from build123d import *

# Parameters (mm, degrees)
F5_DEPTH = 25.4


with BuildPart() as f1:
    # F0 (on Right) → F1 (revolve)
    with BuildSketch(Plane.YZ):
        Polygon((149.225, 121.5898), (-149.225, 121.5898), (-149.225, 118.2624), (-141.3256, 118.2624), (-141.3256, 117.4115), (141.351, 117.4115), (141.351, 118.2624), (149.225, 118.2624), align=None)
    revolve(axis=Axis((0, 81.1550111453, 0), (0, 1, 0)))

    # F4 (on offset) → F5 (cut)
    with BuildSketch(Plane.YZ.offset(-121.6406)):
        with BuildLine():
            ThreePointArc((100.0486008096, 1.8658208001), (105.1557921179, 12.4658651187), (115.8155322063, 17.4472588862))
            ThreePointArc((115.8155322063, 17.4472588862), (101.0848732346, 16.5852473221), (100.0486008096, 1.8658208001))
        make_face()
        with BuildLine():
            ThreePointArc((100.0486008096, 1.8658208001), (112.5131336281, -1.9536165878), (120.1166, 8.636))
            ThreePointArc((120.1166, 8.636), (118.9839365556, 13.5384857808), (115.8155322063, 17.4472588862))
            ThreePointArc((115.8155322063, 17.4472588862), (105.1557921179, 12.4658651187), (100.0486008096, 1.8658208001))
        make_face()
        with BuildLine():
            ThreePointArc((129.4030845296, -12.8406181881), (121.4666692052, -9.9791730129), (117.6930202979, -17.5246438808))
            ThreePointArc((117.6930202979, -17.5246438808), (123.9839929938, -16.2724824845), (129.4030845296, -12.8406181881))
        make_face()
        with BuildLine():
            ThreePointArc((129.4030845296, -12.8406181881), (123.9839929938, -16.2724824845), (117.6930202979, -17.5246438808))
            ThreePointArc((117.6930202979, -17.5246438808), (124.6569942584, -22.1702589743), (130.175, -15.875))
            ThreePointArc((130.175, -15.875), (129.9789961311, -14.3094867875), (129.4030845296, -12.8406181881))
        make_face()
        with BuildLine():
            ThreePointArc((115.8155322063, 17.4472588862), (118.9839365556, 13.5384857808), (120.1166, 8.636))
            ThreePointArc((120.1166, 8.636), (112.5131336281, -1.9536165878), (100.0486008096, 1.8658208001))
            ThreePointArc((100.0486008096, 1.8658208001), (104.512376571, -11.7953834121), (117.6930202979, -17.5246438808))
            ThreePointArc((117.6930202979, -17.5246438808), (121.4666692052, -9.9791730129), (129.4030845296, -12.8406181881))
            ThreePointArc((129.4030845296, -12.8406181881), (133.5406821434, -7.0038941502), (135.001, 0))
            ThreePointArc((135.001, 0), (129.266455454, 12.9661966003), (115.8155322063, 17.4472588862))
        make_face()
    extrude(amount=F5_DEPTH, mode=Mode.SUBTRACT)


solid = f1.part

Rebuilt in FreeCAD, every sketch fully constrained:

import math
import FreeCAD as App
import Part
import Sketcher
from FreeCAD import Vector
Q = App.Units.Quantity

doc = App.newDocument("Part")
body = doc.addObject("PartDesign::Body", "Body")

# Sketch on YZ plane
sketch1 = body.newObject("Sketcher::SketchObject", "Sketch")
sketch1.AttachmentSupport = (doc.getObject("YZ_Plane"), [""])
sketch1.MapMode = "FlatFace"
sketch1.addGeometry([
    Part.LineSegment(Vector(149.225, 121.5898, 0), Vector(-149.225, 121.5898, 0)),  # 0
    Part.LineSegment(Vector(-149.225, 121.5898, 0), Vector(-149.225, 118.2624, 0)),  # 1
    Part.LineSegment(Vector(-149.225, 118.2624, 0), Vector(-141.3256, 118.2624, 0)),  # 2
    Part.LineSegment(Vector(-141.3256, 118.2624, 0), Vector(-141.3256, 117.4115, 0)),  # 3
    Part.LineSegment(Vector(-141.3256, 117.4115, 0), Vector(141.351, 117.4115, 0)),  # 4
    Part.LineSegment(Vector(141.351, 117.4115, 0), Vector(141.351, 118.2624, 0)),  # 5
    Part.LineSegment(Vector(141.351, 118.2624, 0), Vector(149.225, 118.2624, 0)),  # 6
    Part.LineSegment(Vector(149.225, 118.2624, 0), Vector(149.225, 121.5898, 0)),  # 7
], False)
sketch1.addConstraint([
    Sketcher.Constraint("Coincident", 0, 2, 1, 1),
    Sketcher.Constraint("Coincident", 1, 2, 2, 1),
    Sketcher.Constraint("Coincident", 2, 2, 3, 1),
    Sketcher.Constraint("Coincident", 3, 2, 4, 1),
    Sketcher.Constraint("Coincident", 4, 2, 5, 1),
    Sketcher.Constraint("Coincident", 5, 2, 6, 1),
    Sketcher.Constraint("Coincident", 6, 2, 7, 1),
    Sketcher.Constraint("Coincident", 7, 2, 0, 1),
    Sketcher.Constraint("Horizontal", 0),
    Sketcher.Constraint("Vertical", 1),
    Sketcher.Constraint("Horizontal", 2),
    Sketcher.Constraint("Vertical", 3),
    Sketcher.Constraint("Horizontal", 4),
    Sketcher.Constraint("Vertical", 5),
    Sketcher.Constraint("Horizontal", 6),
    Sketcher.Constraint("Vertical", 7),
    Sketcher.Constraint("Symmetric", 1, 2, 6, 2, -2),
    Sketcher.Constraint("DistanceX", 0, 2, 0, 1, Q("11.75 in")),
    Sketcher.Constraint("DistanceX", 6, 1, 6, 2, Q("0.31 in")),
    Sketcher.Constraint("DistanceX", 2, 1, 2, 2, Q("0.311 in")),
    Sketcher.Constraint("DistanceY", 1, 2, 1, 1, Q("0.131 in")),
    Sketcher.Constraint("DistanceY", 3, 2, 3, 1, Q("0.0335 in")),
    Sketcher.Constraint("DistanceY", -1, 1, 0, 2, Q("4.787 in")),
])
revolution = body.newObject("PartDesign::Revolution", "Revolution")
revolution.Profile = sketch1
revolution.ReferenceAxis = (sketch1, ["H_Axis"])
revolution.Angle = 360

# Sketch on YZ plane
sketch2 = body.newObject("Sketcher::SketchObject", "Sketch001")
sketch2.AttachmentSupport = (doc.getObject("YZ_Plane"), [""])
sketch2.MapMode = "FlatFace"
sketch2.AttachmentOffset = App.Placement(Vector(0, 0, -4.789 * 25.4), App.Rotation())
sketch2.addGeometry([
    Part.ArcOfCircle(Part.Circle(Vector(108.9406, 8.636, 0), Vector(0, 0, 1), 11.176), math.radians(52.037077), math.radians(217.284874)),  # 0
    Part.ArcOfCircle(Part.Circle(Vector(117.475, 0, 0), Vector(0, 0, 1), 17.526), math.radians(173.888701), math.radians(270.712768)),  # 1
    Part.ArcOfCircle(Part.Circle(Vector(123.825, -15.875, 0), Vector(0, 0, 1), 6.35), math.radians(-164.942609), math.radians(0)),  # 2
    Part.ArcOfCircle(Part.Circle(Vector(123.825, -15.875, 0), Vector(0, 0, 1), 6.35), math.radians(0), math.radians(28.545428)),  # 3
    Part.ArcOfCircle(Part.Circle(Vector(117.475, 0, 0), Vector(0, 0, 1), 17.526), math.radians(-47.109949), math.radians(0)),  # 4
    Part.ArcOfCircle(Part.Circle(Vector(117.475, 0, 0), Vector(0, 0, 1), 17.526), math.radians(0), math.radians(95.433251)),  # 5
], False)
sketch2.addConstraint([
    Sketcher.Constraint("Coincident", 0, 2, 1, 1),
    Sketcher.Constraint("Coincident", 1, 2, 2, 1),
    Sketcher.Constraint("Tangent", 2, 2, 3, 1),
    Sketcher.Constraint("Coincident", 3, 2, 4, 1),
    Sketcher.Constraint("Tangent", 4, 2, 5, 1),
    Sketcher.Constraint("Coincident", 5, 2, 0, 1),
    Sketcher.Constraint("Coincident", 4, 3, 1, 3),
    Sketcher.Constraint("Equal", 2, 3),
    Sketcher.Constraint("Equal", 1, 4),
    Sketcher.Constraint("Equal", 4, 5),
    Sketcher.Constraint("PointOnObject", 1, 3, -1),
    Sketcher.Constraint("PointOnObject", 4, 2, -1),
    Sketcher.Constraint("Horizontal", 3, 3, 2, 2),
    Sketcher.Constraint("Radius", 0, Q("0.44 in")),
    Sketcher.Constraint("Radius", 1, Q("0.69 in")),
    Sketcher.Constraint("Radius", 2, Q("0.25 in")),
    Sketcher.Constraint("DistanceX", 1, 3, 2, 2, Q("0.5 in")),
    Sketcher.Constraint("DistanceY", -1, 1, 0, 3, Q("0.34 in")),
    Sketcher.Constraint("DistanceX", -1, 1, 0, 3, Q("4.289 in")),
    Sketcher.Constraint("DistanceX", -1, 1, 1, 3, Q("4.625 in")),
    Sketcher.Constraint("DistanceY", 2, 3, -1, 1, Q("0.625 in")),
])
pocket1 = body.newObject("PartDesign::Pocket", "Pocket")
pocket1.Profile = sketch2
pocket1.Length = Q("1 in")
pocket1.Reversed = True

doc.recompute()
